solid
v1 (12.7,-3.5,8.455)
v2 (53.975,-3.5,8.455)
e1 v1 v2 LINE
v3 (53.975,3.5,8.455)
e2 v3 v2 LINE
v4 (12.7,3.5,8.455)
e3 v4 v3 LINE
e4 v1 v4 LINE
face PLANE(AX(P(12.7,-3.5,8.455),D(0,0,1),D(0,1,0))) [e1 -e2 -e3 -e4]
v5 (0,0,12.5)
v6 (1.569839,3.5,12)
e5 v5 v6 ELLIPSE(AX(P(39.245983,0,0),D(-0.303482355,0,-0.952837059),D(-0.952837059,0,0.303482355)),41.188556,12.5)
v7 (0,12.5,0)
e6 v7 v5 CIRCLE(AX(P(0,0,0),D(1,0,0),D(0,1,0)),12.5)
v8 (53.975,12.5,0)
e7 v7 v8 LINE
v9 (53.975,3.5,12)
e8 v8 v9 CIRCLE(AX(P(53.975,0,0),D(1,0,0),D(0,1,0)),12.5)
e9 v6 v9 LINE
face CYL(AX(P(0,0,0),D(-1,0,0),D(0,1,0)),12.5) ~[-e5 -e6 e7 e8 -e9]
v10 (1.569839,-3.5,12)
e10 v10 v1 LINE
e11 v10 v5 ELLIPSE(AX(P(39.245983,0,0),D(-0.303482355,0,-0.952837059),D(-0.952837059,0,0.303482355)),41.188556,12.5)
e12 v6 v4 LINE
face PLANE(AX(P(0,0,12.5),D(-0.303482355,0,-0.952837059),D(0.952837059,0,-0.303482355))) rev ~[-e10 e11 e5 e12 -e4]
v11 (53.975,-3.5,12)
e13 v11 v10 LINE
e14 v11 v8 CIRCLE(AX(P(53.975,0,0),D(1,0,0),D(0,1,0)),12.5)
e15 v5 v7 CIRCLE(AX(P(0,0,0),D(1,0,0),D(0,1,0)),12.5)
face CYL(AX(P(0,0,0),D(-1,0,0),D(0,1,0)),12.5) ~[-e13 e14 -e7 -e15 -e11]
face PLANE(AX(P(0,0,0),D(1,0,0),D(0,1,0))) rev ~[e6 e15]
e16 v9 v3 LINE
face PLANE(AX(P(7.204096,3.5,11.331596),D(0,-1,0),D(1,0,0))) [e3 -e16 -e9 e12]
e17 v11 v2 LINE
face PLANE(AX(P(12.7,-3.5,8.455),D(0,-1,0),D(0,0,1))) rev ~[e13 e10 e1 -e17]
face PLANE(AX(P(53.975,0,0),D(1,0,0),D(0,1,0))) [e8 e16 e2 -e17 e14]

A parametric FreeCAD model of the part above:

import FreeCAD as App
import Part
import Sketcher
from FreeCAD import Vector


def add_polygon(sketch, points):
    """Adds a closed chain of lines whose ends are joined by coincident constraints."""
    first, n = sketch.GeometryCount, len(points)
    for a, b in zip(points, points[1:] + points[:1]):
        sketch.addGeometry(Part.LineSegment(App.Vector(*a, 0), App.Vector(*b, 0)), False)
    for i in range(n):
        sketch.addConstraint(Sketcher.Constraint("Coincident", first + i, 2, first + (i + 1) % n, 1))

doc = App.newDocument("Part")
params = doc.addObject("Spreadsheet::Sheet", "Params")
for row, (alias, value) in enumerate([
    ("sketch1_diameter", "25 mm"),
    ("pad1_length", "53.975 mm"),
    ("sketch2_width", "7 mm"),
    ("sketch3_width", "12.7 mm"),
    ("pocket2_length", "7 mm"),
], start=1):
    params.set(f"A{row}", alias)
    params.set(f"B{row}", "=" + value)
    params.setAlias(f"B{row}", alias)

body = doc.addObject("PartDesign::Body", "Body")

# Sketch on YZ plane
sketch1 = body.newObject("Sketcher::SketchObject", "Sketch")
sketch1.AttachmentSupport = (doc.getObject("YZ_Plane"), [""])
sketch1.MapMode = "FlatFace"
sketch1.addGeometry(Part.Circle(Vector(0, 0, 0), Vector(0, 0, 1), 12), False)
sketch1.addConstraint([
    Sketcher.Constraint("Coincident", 0, 3, -1, 1),
    Sketcher.Constraint("Diameter", 0, 25.0),
])
sketch1.setExpression("Constraints[1]", "Params.sketch1_diameter")
pad1 = body.newObject("PartDesign::Pad", "Pad")
pad1.Profile = sketch1
pad1.setExpression("Length", "Params.pad1_length")

# Sketch on YZ plane
sketch2 = body.newObject("Sketcher::SketchObject", "Sketch001")
sketch2.AttachmentSupport = (doc.getObject("YZ_Plane"), [""])
sketch2.MapMode = "FlatFace"
sketch2.AttachmentOffset = App.Placement(Vector(0, 0, 12.7), App.Rotation())
add_polygon(sketch2, [(-3.5, 12.5), (-3.5, 8.5), (3.5, 8.5), (3.5, 12.5)])  # lines 0-3
sketch2.addConstraint([
    Sketcher.Constraint("Vertical", 0),
    Sketcher.Constraint("Horizontal", 1),
    Sketcher.Constraint("Vertical", 2),
    Sketcher.Constraint("Horizontal", 3),
    Sketcher.Constraint("DistanceX", 1, 1, 1, 2, 7.0),
    Sketcher.Constraint("DistanceX", 0, 2, -1, 1, 3.5),
    Sketcher.Constraint("DistanceY", -1, 1, 2, 2, 12.5),
    Sketcher.Constraint("DistanceY", 0, 2, 0, 1, 4.045),
])
sketch2.setExpression("Constraints[8]", "Params.sketch2_width")
pocket1 = body.newObject("PartDesign::Pocket", "Pocket")
pocket1.Profile = sketch2
pocket1.Type = "ThroughAll"
pocket1.Reversed = True

# Sketch on XZ plane
sketch3 = body.newObject("Sketcher::SketchObject", "Sketch002")
sketch3.AttachmentSupport = (doc.getObject("XZ_Plane"), [""])
sketch3.MapMode = "FlatFace"
add_polygon(sketch3, [(0, 12.5), (12.7, 8.5), (12.7, 12.5)])  # lines 0-2
sketch3.addConstraint([
    Sketcher.Constraint("Vertical", 1),
    Sketcher.Constraint("Horizontal", 2),
    Sketcher.Constraint("PointOnObject", 2, 2, -2),
    Sketcher.Constraint("DistanceX", 2, 2, 2, 1, 12.7),
    Sketcher.Constraint("DistanceY", -1, 1, 1, 2, 12.5),
    Sketcher.Constraint("DistanceY", 1, 1, 1, 2, 4.045),
])
sketch3.setExpression("Constraints[6]", "Params.sketch3_width")
pocket2 = body.newObject("PartDesign::Pocket", "Pocket001")
pocket2.Profile = sketch3
pocket2.setExpression("Length", "Params.pocket2_length")
pocket2.Midplane = True

doc.recompute()
